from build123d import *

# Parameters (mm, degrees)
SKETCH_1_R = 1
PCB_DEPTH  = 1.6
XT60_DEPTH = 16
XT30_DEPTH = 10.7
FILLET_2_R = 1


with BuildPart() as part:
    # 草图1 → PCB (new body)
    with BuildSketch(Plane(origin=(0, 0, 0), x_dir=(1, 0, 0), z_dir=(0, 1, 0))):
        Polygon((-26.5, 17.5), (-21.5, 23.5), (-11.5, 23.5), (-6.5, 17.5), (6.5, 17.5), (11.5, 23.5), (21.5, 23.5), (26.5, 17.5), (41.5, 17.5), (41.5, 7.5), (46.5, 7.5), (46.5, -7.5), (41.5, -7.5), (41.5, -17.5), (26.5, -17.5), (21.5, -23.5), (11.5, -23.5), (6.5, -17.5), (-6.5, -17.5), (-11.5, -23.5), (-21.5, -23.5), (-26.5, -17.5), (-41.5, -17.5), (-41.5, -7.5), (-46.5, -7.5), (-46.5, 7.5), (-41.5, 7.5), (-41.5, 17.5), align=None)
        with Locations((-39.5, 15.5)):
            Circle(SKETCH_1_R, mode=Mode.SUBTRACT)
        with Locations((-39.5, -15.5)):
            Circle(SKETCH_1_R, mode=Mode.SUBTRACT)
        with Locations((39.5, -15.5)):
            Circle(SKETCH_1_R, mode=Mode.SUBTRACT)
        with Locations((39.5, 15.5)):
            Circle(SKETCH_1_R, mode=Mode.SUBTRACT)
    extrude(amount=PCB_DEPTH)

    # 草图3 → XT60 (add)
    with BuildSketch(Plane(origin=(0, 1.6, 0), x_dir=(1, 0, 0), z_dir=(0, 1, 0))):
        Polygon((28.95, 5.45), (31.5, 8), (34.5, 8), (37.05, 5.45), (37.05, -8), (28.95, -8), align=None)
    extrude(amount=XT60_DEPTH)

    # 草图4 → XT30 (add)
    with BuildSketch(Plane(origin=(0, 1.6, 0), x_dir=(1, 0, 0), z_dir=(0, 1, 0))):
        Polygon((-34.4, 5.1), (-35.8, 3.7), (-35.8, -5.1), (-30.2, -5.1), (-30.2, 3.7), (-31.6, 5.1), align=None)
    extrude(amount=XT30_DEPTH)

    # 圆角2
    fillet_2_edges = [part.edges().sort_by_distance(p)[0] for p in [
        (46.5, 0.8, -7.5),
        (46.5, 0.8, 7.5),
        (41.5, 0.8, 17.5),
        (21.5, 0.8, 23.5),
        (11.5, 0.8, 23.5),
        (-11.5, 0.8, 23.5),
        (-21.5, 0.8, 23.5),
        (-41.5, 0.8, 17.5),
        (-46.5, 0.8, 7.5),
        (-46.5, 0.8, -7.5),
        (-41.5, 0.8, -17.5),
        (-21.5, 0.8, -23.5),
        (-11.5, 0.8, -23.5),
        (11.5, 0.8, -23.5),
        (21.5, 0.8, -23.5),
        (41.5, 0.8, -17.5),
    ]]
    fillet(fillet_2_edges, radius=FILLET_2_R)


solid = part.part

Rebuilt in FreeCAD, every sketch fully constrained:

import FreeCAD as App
import Part
import Sketcher
from FreeCAD import Vector
Q = App.Units.Quantity


def edges_at(feature, points):
    """Names of the edges that pass closest to the given points."""
    edges = feature.Shape.Edges
    near = lambda p: min(range(len(edges)), key=lambda i: edges[i].distToShape(Part.Vertex(*p))[0])
    return sorted({f"Edge{near(p) + 1}" for p in points})

doc = App.newDocument("Part")
params = doc.addObject("Spreadsheet::Sheet", "Params")
for row, (alias, value) in enumerate([
    ("sketch1_diameter", "2 mm"),
    ("sketch1_width", "15 mm"),
    ("sketch1_width2", "5 mm"),
    ("sketch1_width3", "10 mm"),
    ("sketch1_width4", "13 mm"),
    ("pad1_length", "1.6 mm"),
    ("sketch2_width", "3 mm"),
    ("sketch2_width2", "8.1 mm"),
    ("pad2_length", "16 mm"),
    ("sketch3_width", "5.6 mm"),
    ("sketch3_width2", "2.8 mm"),
    ("sketch3_height", "8.8 mm"),
    ("pad3_length", "10.7 mm"),
    ("fillet_radius", "1 mm"),
], start=1):
    params.set(f"A{row}", alias)
    params.set(f"B{row}", "=" + value)
    params.setAlias(f"B{row}", alias)

body = doc.addObject("PartDesign::Body", "Body")

# Sketch on XZ plane
sketch1 = doc.addObject("Sketcher::SketchObject", "Sketch")
body.addObject(sketch1)
sketch1.AttachmentSupport = (doc.XZ_Plane, [""])
sketch1.MapMode = "FlatFace"
sketch1.addGeometry([
    Part.LineSegment(Vector(-21.5, -23.5, 0), Vector(-26.5, -17.5, 0)),  # 0
    Part.LineSegment(Vector(-26.5, -17.5, 0), Vector(-41.5, -17.5, 0)),  # 1
    Part.LineSegment(Vector(-41.5, -17.5, 0), Vector(-41.5, -7.5, 0)),  # 2
    Part.LineSegment(Vector(-41.5, -7.5, 0), Vector(-46.5, -7.5, 0)),  # 3
    Part.LineSegment(Vector(-46.5, -7.5, 0), Vector(-46.5, 7.5, 0)),  # 4
    Part.LineSegment(Vector(-46.5, 7.5, 0), Vector(-41.5, 7.5, 0)),  # 5
    Part.LineSegment(Vector(-41.5, 7.5, 0), Vector(-41.5, 17.5, 0)),  # 6
    Part.LineSegment(Vector(-41.5, 17.5, 0), Vector(-26.5, 17.5, 0)),  # 7
    Part.LineSegment(Vector(-26.5, 17.5, 0), Vector(-21.5, 23.5, 0)),  # 8
    Part.LineSegment(Vector(-21.5, 23.5, 0), Vector(-11.5, 23.5, 0)),  # 9
    Part.LineSegment(Vector(-11.5, 23.5, 0), Vector(-6.5, 17.5, 0)),  # 10
    Part.LineSegment(Vector(-6.5, 17.5, 0), Vector(6.5, 17.5, 0)),  # 11
    Part.LineSegment(Vector(6.5, 17.5, 0), Vector(11.5, 23.5, 0)),  # 12
    Part.LineSegment(Vector(11.5, 23.5, 0), Vector(21.5, 23.5, 0)),  # 13
    Part.LineSegment(Vector(21.5, 23.5, 0), Vector(26.5, 17.5, 0)),  # 14
    Part.LineSegment(Vector(26.5, 17.5, 0), Vector(41.5, 17.5, 0)),  # 15
    Part.LineSegment(Vector(41.5, 17.5, 0), Vector(41.5, 7.5, 0)),  # 16
    Part.LineSegment(Vector(41.5, 7.5, 0), Vector(46.5, 7.5, 0)),  # 17
    Part.LineSegment(Vector(46.5, 7.5, 0), Vector(46.5, -7.5, 0)),  # 18
    Part.LineSegment(Vector(46.5, -7.5, 0), Vector(41.5, -7.5, 0)),  # 19
    Part.LineSegment(Vector(41.5, -7.5, 0), Vector(41.5, -17.5, 0)),  # 20
    Part.LineSegment(Vector(41.5, -17.5, 0), Vector(26.5, -17.5, 0)),  # 21
    Part.LineSegment(Vector(26.5, -17.5, 0), Vector(21.5, -23.5, 0)),  # 22
    Part.LineSegment(Vector(21.5, -23.5, 0), Vector(11.5, -23.5, 0)),  # 23
    Part.LineSegment(Vector(11.5, -23.5, 0), Vector(6.5, -17.5, 0)),  # 24
    Part.LineSegment(Vector(6.5, -17.5, 0), Vector(-6.5, -17.5, 0)),  # 25
    Part.LineSegment(Vector(-6.5, -17.5, 0), Vector(-11.5, -23.5, 0)),  # 26
    Part.LineSegment(Vector(-11.5, -23.5, 0), Vector(-21.5, -23.5, 0)),  # 27
    Part.Circle(Vector(39.5, 15.5, 0), Vector(0, 0, 1), 1),  # 28
    Part.Circle(Vector(-39.5, 15.5, 0), Vector(0, 0, 1), 1),  # 29
    Part.Circle(Vector(39.5, -15.5, 0), Vector(0, 0, 1), 1),  # 30
    Part.Circle(Vector(-39.5, -15.5, 0), Vector(0, 0, 1), 1),  # 31
], False)
sketch1.addConstraint([
    Sketcher.Constraint("Coincident", 0, 2, 1, 1),
    Sketcher.Constraint("Coincident", 1, 2, 2, 1),
    Sketcher.Constraint("Coincident", 2, 2, 3, 1),
    Sketcher.Constraint("Coincident", 3, 2, 4, 1),
    Sketcher.Constraint("Coincident", 4, 2, 5, 1),
    Sketcher.Constraint("Coincident", 5, 2, 6, 1),
    Sketcher.Constraint("Coincident", 6, 2, 7, 1),
    Sketcher.Constraint("Coincident", 7, 2, 8, 1),
    Sketcher.Constraint("Coincident", 8, 2, 9, 1),
    Sketcher.Constraint("Coincident", 9, 2, 10, 1),
    Sketcher.Constraint("Coincident", 10, 2, 11, 1),
    Sketcher.Constraint("Coincident", 11, 2, 12, 1),
    Sketcher.Constraint("Coincident", 12, 2, 13, 1),
    Sketcher.Constraint("Coincident", 13, 2, 14, 1),
    Sketcher.Constraint("Coincident", 14, 2, 15, 1),
    Sketcher.Constraint("Coincident", 15, 2, 16, 1),
    Sketcher.Constraint("Coincident", 16, 2, 17, 1),
    Sketcher.Constraint("Coincident", 17, 2, 18, 1),
    Sketcher.Constraint("Coincident", 18, 2, 19, 1),
    Sketcher.Constraint("Coincident", 19, 2, 20, 1),
    Sketcher.Constraint("Coincident", 20, 2, 21, 1),
    Sketcher.Constraint("Coincident", 21, 2, 22, 1),
    Sketcher.Constraint("Coincident", 22, 2, 23, 1),
    Sketcher.Constraint("Coincident", 23, 2, 24, 1),
    Sketcher.Constraint("Coincident", 24, 2, 25, 1),
    Sketcher.Constraint("Coincident", 25, 2, 26, 1),
    Sketcher.Constraint("Coincident", 26, 2, 27, 1),
    Sketcher.Constraint("Coincident", 27, 2, 0, 1),
    Sketcher.Constraint("Horizontal", 1),
    Sketcher.Constraint("Vertical", 2),
    Sketcher.Constraint("Horizontal", 3),
    Sketcher.Constraint("Vertical", 4),
    Sketcher.Constraint("Horizontal", 5),
    Sketcher.Constraint("Vertical", 6),
    Sketcher.Constraint("Horizontal", 7),
    Sketcher.Constraint("Horizontal", 9),
    Sketcher.Constraint("Horizontal", 11),
    Sketcher.Constraint("Horizontal", 13),
    Sketcher.Constraint("Horizontal", 15),
    Sketcher.Constraint("Vertical", 16),
    Sketcher.Constraint("Horizontal", 17),
    Sketcher.Constraint("Vertical", 18),
    Sketcher.Constraint("Horizontal", 19),
    Sketcher.Constraint("Vertical", 20),
    Sketcher.Constraint("Horizontal", 21),
    Sketcher.Constraint("Horizontal", 23),
    Sketcher.Constraint("Horizontal", 25),
    Sketcher.Constraint("Horizontal", 27),
    Sketcher.Constraint("Equal", 28, 29),
    Sketcher.Constraint("Equal", 29, 30),
    Sketcher.Constraint("Equal", 30, 31),
    Sketcher.Constraint("Symmetric", 29, 3, 30, 3, -1, 1),
    Sketcher.Constraint("Symmetric", 28, 3, 31, 3, -1, 1),
    Sketcher.Constraint("Symmetric", 0, 2, 14, 2, -1, 1),
    Sketcher.Constraint("Symmetric", 2, 2, 16, 2, -1, 1),
    Sketcher.Constraint("Symmetric", 4, 2, 18, 2, -1, 1),
    Sketcher.Constraint("Symmetric", 6, 2, 20, 2, -1, 1),
    Sketcher.Constraint("Symmetric", 8, 2, 22, 2, -1, 1),
    Sketcher.Constraint("Symmetric", 10, 2, 24, 2, -1, 1),
    Sketcher.Constraint("Symmetric", 12, 2, 26, 2, -1, 1),
    Sketcher.Constraint("Symmetric", 28, 3, 29, 3, -2),
    Sketcher.Constraint("Symmetric", 9, 2, 12, 2, -2),
    Sketcher.Constraint("Symmetric", 7, 2, 14, 2, -2),
    Sketcher.Constraint("Symmetric", 5, 2, 16, 2, -2),
    Sketcher.Constraint("Parallel", 0, 10),
    Sketcher.Constraint("Parallel", 8, 12),
    Sketcher.Constraint("Parallel", 10, 14),
    Sketcher.Constraint("Parallel", 12, 22),
    Sketcher.Constraint("Parallel", 14, 24),
    Sketcher.Constraint("Parallel", 22, 26),
    Sketcher.Constraint("Horizontal", 7, 2, 10, 2),
    Sketcher.Constraint("Vertical", 13, 2, 22, 2),
    Sketcher.Constraint("Equal", 27, 2),
    Sketcher.Constraint("Equal", 21, 4),
    Sketcher.Constraint("Diameter", 28, Q("2 mm")),
    Sketcher.Constraint("DistanceX", 1, 2, 1, 1, Q("15 mm")),
    Sketcher.Constraint("DistanceX", 3, 2, 3, 1, Q("5 mm")),
    Sketcher.Constraint("DistanceX", 9, 1, 9, 2, Q("10 mm")),
    Sketcher.Constraint("DistanceX", 11, 1, 11, 2, Q("13 mm")),
    Sketcher.Constraint("DistanceX", 29, 3, 28, 3, Q("79 mm")),
    Sketcher.Constraint("DistanceY", 30, 3, 28, 3, Q("31 mm")),
    Sketcher.Constraint("DistanceX", 31, 3, 0, 2, Q("13 mm")),
    Sketcher.Constraint("DistanceY", 7, 2, 8, 2, Q("6 mm")),
])
sketch1.setExpression("Constraints[74]", "Params.sketch1_diameter")
sketch1.setExpression("Constraints[75]", "Params.sketch1_width")
sketch1.setExpression("Constraints[76]", "Params.sketch1_width2")
sketch1.setExpression("Constraints[77]", "Params.sketch1_width3")
sketch1.setExpression("Constraints[78]", "Params.sketch1_width4")
pad1 = doc.addObject("PartDesign::Pad", "Pad")
body.addObject(pad1)
pad1.Profile = sketch1
pad1.setExpression("Length", "Params.pad1_length")
pad1.Reversed = True

# Sketch on XZ plane
sketch2 = doc.addObject("Sketcher::SketchObject", "Sketch001")
body.addObject(sketch2)
sketch2.AttachmentSupport = (doc.XZ_Plane, [""])
sketch2.MapMode = "FlatFace"
sketch2.AttachmentOffset = App.Placement(Vector(0, 0, -1.6), App.Rotation())
sketch2.addGeometry([
    Part.LineSegment(Vector(31.5, -8, 0), Vector(28.9, -5.5, 0)),  # 0
    Part.LineSegment(Vector(28.9, -5.5, 0), Vector(28.9, 8, 0)),  # 1
    Part.LineSegment(Vector(28.9, 8, 0), Vector(37, 8, 0)),  # 2
    Part.LineSegment(Vector(37, 8, 0), Vector(37, -5.5, 0)),  # 3
    Part.LineSegment(Vector(37, -5.5, 0), Vector(34.5, -8, 0)),  # 4
    Part.LineSegment(Vector(34.5, -8, 0), Vector(31.5, -8, 0)),  # 5
], False)
sketch2.addConstraint([
    Sketcher.Constraint("Coincident", 0, 2, 1, 1),
    Sketcher.Constraint("Coincident", 1, 2, 2, 1),
    Sketcher.Constraint("Coincident", 2, 2, 3, 1),
    Sketcher.Constraint("Coincident", 3, 2, 4, 1),
    Sketcher.Constraint("Coincident", 4, 2, 5, 1),
    Sketcher.Constraint("Coincident", 5, 2, 0, 1),
    Sketcher.Constraint("Vertical", 1),
    Sketcher.Constraint("Horizontal", 2),
    Sketcher.Constraint("Vertical", 3),
    Sketcher.Constraint("Horizontal", 5),
    Sketcher.Constraint("Perpendicular", 0, 4),
    Sketcher.Constraint("Horizontal", 0, 2, 3, 2),
    Sketcher.Constraint("Equal", 0, 4),
    Sketcher.Constraint("DistanceX", 5, 2, 5, 1, Q("3 mm")),
    Sketcher.Constraint("DistanceX", 2, 1, 2, 2, Q("8.1 mm")),
    Sketcher.Constraint("DistanceY", -1, 1, 1, 2, Q("8 mm")),
    Sketcher.Constraint("DistanceY", 4, 2, -1, 1, Q("8 mm")),
    Sketcher.Constraint("DistanceX", -1, 1, 4, 2, Q("34.5 mm")),
])
sketch2.setExpression("Constraints[13]", "Params.sketch2_width")
sketch2.setExpression("Constraints[14]", "Params.sketch2_width2")
pad2 = doc.addObject("PartDesign::Pad", "Pad001")
body.addObject(pad2)
pad2.Profile = sketch2
pad2.setExpression("Length", "Params.pad2_length")
pad2.Reversed = True

# Sketch on XZ plane
sketch3 = doc.addObject("Sketcher::SketchObject", "Sketch002")
body.addObject(sketch3)
sketch3.AttachmentSupport = (doc.XZ_Plane, [""])
sketch3.MapMode = "FlatFace"
sketch3.AttachmentOffset = App.Placement(Vector(0, 0, -1.6), App.Rotation())
sketch3.addGeometry([
    Part.LineSegment(Vector(-34.4, -5.1, 0), Vector(-35.8, -3.7, 0)),  # 0
    Part.LineSegment(Vector(-35.8, -3.7, 0), Vector(-35.8, 5.1, 0)),  # 1
    Part.LineSegment(Vector(-35.8, 5.1, 0), Vector(-30.2, 5.1, 0)),  # 2
    Part.LineSegment(Vector(-30.2, 5.1, 0), Vector(-30.2, -3.7, 0)),  # 3
    Part.LineSegment(Vector(-30.2, -3.7, 0), Vector(-31.6, -5.1, 0)),  # 4
    Part.LineSegment(Vector(-31.6, -5.1, 0), Vector(-34.4, -5.1, 0)),  # 5
], False)
sketch3.addConstraint([
    Sketcher.Constraint("Coincident", 0, 2, 1, 1),
    Sketcher.Constraint("Coincident", 1, 2, 2, 1),
    Sketcher.Constraint("Coincident", 2, 2, 3, 1),
    Sketcher.Constraint("Coincident", 3, 2, 4, 1),
    Sketcher.Constraint("Coincident", 4, 2, 5, 1),
    Sketcher.Constraint("Coincident", 5, 2, 0, 1),
    Sketcher.Constraint("Vertical", 1),
    Sketcher.Constraint("Horizontal", 2),
    Sketcher.Constraint("Vertical", 3),
    Sketcher.Constraint("Horizontal", 5),
    Sketcher.Constraint("Perpendicular", 0, 4),
    Sketcher.Constraint("Horizontal", 0, 2, 3, 2),
    Sketcher.Constraint("Equal", 0, 4),
    Sketcher.Constraint("DistanceX", 2, 1, 2, 2, Q("5.6 mm")),
    Sketcher.Constraint("DistanceX", 5, 2, 5, 1, Q("2.8 mm")),
    Sketcher.Constraint("DistanceY", 1, 1, 1, 2, Q("8.8 mm")),
    Sketcher.Constraint("DistanceX", 0, 2, -1, 1, Q("35.8 mm")),
    Sketcher.Constraint("DistanceY", 0, 2, -1, 1, Q("3.7 mm")),
])
sketch3.setExpression("Constraints[13]", "Params.sketch3_width")
sketch3.setExpression("Constraints[14]", "Params.sketch3_width2")
sketch3.setExpression("Constraints[15]", "Params.sketch3_height")
pad3 = doc.addObject("PartDesign::Pad", "Pad002")
body.addObject(pad3)
pad3.Profile = sketch3
pad3.setExpression("Length", "Params.pad3_length")
pad3.Reversed = True
doc.recompute()

fillet = doc.addObject("PartDesign::Fillet", "Fillet")
body.addObject(fillet)
fillet.Base = (pad3, edges_at(pad3, [
    (46.5, 0.8, -7.5),
    (46.5, 0.8, 7.5),
    (41.5, 0.8, 17.5),
    (21.5, 0.8, 23.5),
    (11.5, 0.8, 23.5),
    (-11.5, 0.8, 23.5),
    (-21.5, 0.8, 23.5),
    (-41.5, 0.8, 17.5),
    (-46.5, 0.8, 7.5),
    (-46.5, 0.8, -7.5),
    (-41.5, 0.8, -17.5),
    (-21.5, 0.8, -23.5),
    (-11.5, 0.8, -23.5),
    (11.5, 0.8, -23.5),
    (21.5, 0.8, -23.5),
    (41.5, 0.8, -17.5),
]))
fillet.setExpression("Radius", "Params.fillet_radius")

doc.recompute()
